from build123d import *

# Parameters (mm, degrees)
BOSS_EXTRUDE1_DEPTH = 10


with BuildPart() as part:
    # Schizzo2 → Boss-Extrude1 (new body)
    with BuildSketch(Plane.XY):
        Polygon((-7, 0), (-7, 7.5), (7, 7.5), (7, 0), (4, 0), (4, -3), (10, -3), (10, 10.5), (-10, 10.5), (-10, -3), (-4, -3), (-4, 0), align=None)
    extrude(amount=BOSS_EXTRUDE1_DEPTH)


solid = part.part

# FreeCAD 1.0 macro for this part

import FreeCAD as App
import Part
import Sketcher
from FreeCAD import Vector

doc = App.newDocument("Part")
body = doc.addObject("PartDesign::Body", "Body")

sketch1 = body.newObject("Sketcher::SketchObject", "Sketch")
sketch1.AttachmentSupport = (doc.getObject("XY_Plane"), [""])
sketch1.MapMode = "FlatFace"
sketch1.addGeometry([
    Part.LineSegment(Vector(-7, 0, 0), Vector(-7, 7.5, 0)),
    Part.LineSegment(Vector(-7, 7.5, 0), Vector(7, 7.5, 0)),
    Part.LineSegment(Vector(7, 7.5, 0), Vector(7, 0, 0)),
    Part.LineSegment(Vector(7, 0, 0), Vector(4, 0, 0)),
    Part.LineSegment(Vector(4, 0, 0), Vector(4, -3, 0)),
    Part.LineSegment(Vector(4, -3, 0), Vector(10, -3, 0)),
    Part.LineSegment(Vector(10, -3, 0), Vector(10, 10.5, 0)),
    Part.LineSegment(Vector(10, 10.5, 0), Vector(-10, 10.5, 0)),
    Part.LineSegment(Vector(-10, 10.5, 0), Vector(-10, -3, 0)),
    Part.LineSegment(Vector(-10, -3, 0), Vector(-4, -3, 0)),
    Part.LineSegment(Vector(-4, -3, 0), Vector(-4, 0, 0)),
    Part.LineSegment(Vector(-4, 0, 0), Vector(-7, 0, 0)),
], False)
sketch1.addConstraint([
    Sketcher.Constraint("Coincident", 0, 2, 1, 1),
    Sketcher.Constraint("Coincident", 1, 2, 2, 1),
    Sketcher.Constraint("Coincident", 2, 2, 3, 1),
    Sketcher.Constraint("Coincident", 3, 2, 4, 1),
    Sketcher.Constraint("Coincident", 4, 2, 5, 1),
    Sketcher.Constraint("Coincident", 5, 2, 6, 1),
    Sketcher.Constraint("Coincident", 6, 2, 7, 1),
    Sketcher.Constraint("Coincident", 7, 2, 8, 1),
    Sketcher.Constraint("Coincident", 8, 2, 9, 1),
    Sketcher.Constraint("Coincident", 9, 2, 10, 1),
    Sketcher.Constraint("Coincident", 10, 2, 11, 1),
    Sketcher.Constraint("Coincident", 11, 2, 0, 1),
    Sketcher.Constraint("Vertical", 0),
    Sketcher.Constraint("Horizontal", 1),
    Sketcher.Constraint("Vertical", 2),
    Sketcher.Constraint("Horizontal", 3),
    Sketcher.Constraint("Vertical", 4),
    Sketcher.Constraint("Horizontal", 5),
    Sketcher.Constraint("Vertical", 6),
    Sketcher.Constraint("Horizontal", 7),
    Sketcher.Constraint("Vertical", 8),
    Sketcher.Constraint("Horizontal", 9),
    Sketcher.Constraint("Vertical", 10),
    Sketcher.Constraint("Horizontal", 11),
    Sketcher.Constraint("Symmetric", 3, 2, 10, 2, -1, 1),
    Sketcher.Constraint("Symmetric", 5, 2, 8, 2, -2),
    Sketcher.Constraint("Symmetric", 2, 2, 11, 2, -2),
    Sketcher.Constraint("Equal", 11, 4),
    Sketcher.Constraint("DistanceX", 1, 1, 1, 2, 14.0),
    Sketcher.Constraint("DistanceX", 3, 2, 3, 1, 3.0),
    Sketcher.Constraint("DistanceX", 5, 1, 5, 2, 6.0),
    Sketcher.Constraint("DistanceY", 0, 1, 0, 2, 7.5),
    Sketcher.Constraint("DistanceY", 6, 1, 6, 2, 13.5),
])
pad1 = body.newObject("PartDesign::Pad", "Pad")
pad1.Profile = sketch1
pad1.Length = 10

doc.recompute()
